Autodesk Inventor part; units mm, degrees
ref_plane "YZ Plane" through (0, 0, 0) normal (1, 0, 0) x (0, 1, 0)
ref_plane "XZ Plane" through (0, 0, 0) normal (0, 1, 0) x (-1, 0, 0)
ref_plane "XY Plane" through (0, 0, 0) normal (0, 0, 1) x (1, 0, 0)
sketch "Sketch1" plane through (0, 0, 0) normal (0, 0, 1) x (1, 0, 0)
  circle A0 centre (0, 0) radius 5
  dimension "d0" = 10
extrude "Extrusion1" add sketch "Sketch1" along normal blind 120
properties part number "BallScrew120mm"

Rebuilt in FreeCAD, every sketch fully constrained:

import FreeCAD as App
import Part
import Sketcher

doc = App.newDocument("Part")
params = doc.addObject("Spreadsheet::Sheet", "Params")
for row, (alias, value) in enumerate([
    ("sketch1_diameter", "10 mm"),
    ("pad1_length", "120 mm"),
], start=1):
    params.set(f"A{row}", alias)
    params.set(f"B{row}", "=" + value)
    params.setAlias(f"B{row}", alias)

body = doc.addObject("PartDesign::Body", "Body")

# Sketch on XY plane
sketch1 = doc.addObject("Sketcher::SketchObject", "Sketch")
body.addObject(sketch1)
sketch1.AttachmentSupport = (doc.XY_Plane, [""])
sketch1.MapMode = "FlatFace"
sketch1.addGeometry(Part.Circle(App.Vector(0, 0, 0), App.Vector(0, 0, 1), 5), False)
sketch1.addConstraint(Sketcher.Constraint("Coincident", 0, 3, -1, 1))
sketch1.addConstraint(Sketcher.Constraint("Diameter", 0, 10.0))
sketch1.setExpression("Constraints[1]", "Params.sketch1_diameter")
pad1 = doc.addObject("PartDesign::Pad", "Pad")
body.addObject(pad1)
pad1.Profile = sketch1
pad1.setExpression("Length", "Params.pad1_length")

doc.recompute()
